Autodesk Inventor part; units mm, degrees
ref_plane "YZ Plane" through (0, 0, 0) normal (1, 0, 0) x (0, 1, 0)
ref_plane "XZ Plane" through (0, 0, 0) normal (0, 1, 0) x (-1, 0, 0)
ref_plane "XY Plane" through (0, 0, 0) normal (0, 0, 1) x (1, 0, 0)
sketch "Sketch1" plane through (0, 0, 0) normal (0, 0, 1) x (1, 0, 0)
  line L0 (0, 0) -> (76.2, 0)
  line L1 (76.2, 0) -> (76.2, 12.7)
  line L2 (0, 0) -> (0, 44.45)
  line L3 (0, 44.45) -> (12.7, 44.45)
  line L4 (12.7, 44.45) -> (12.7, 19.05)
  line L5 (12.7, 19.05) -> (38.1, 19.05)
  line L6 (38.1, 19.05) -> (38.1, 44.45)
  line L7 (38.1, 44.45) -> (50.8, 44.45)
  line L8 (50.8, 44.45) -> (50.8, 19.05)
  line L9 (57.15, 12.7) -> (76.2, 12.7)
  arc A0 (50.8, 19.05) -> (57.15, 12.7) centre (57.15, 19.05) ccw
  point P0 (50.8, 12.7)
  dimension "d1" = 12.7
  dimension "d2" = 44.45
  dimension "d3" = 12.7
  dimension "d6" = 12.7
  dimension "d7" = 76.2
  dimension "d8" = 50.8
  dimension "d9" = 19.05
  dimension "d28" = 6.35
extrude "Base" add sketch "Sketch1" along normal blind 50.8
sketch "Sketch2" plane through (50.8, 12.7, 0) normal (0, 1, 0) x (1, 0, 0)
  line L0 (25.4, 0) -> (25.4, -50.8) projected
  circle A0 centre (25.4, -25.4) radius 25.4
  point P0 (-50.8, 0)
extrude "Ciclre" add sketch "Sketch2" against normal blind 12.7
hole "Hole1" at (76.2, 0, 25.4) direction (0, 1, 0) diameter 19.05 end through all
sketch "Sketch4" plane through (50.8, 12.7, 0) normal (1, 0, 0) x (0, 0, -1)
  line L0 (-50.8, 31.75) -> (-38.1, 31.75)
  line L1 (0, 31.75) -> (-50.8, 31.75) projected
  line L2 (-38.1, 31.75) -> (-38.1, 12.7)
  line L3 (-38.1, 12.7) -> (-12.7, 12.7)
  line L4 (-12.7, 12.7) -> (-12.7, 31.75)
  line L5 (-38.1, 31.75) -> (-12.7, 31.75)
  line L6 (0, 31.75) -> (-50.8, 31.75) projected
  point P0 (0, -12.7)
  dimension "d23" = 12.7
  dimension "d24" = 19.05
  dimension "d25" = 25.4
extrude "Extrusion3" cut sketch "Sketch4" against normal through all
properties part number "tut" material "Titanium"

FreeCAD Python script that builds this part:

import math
import FreeCAD as App
import Part
import Sketcher
from FreeCAD import Vector
Q = App.Units.Quantity


def add_polygon(sketch, points):
    """Adds a closed chain of lines whose ends are joined by coincident constraints."""
    first, n = sketch.GeometryCount, len(points)
    for a, b in zip(points, points[1:] + points[:1]):
        sketch.addGeometry(Part.LineSegment(App.Vector(*a, 0), App.Vector(*b, 0)), False)
    for i in range(n):
        sketch.addConstraint(Sketcher.Constraint("Coincident", first + i, 2, first + (i + 1) % n, 1))

doc = App.newDocument("Part")
body = doc.addObject("PartDesign::Body", "Body")

# Sketch on XY plane
sketch1 = doc.addObject("Sketcher::SketchObject", "Sketch")
body.addObject(sketch1)
sketch1.AttachmentSupport = (doc.XY_Plane, [""])
sketch1.MapMode = "FlatFace"
sketch1.addGeometry([
    Part.LineSegment(Vector(0, 44, 0), Vector(0, 0, 0)),  # 0
    Part.LineSegment(Vector(0, 0, 0), Vector(76, 0, 0)),  # 1
    Part.LineSegment(Vector(76, 0, 0), Vector(76, 13, 0)),  # 2
    Part.LineSegment(Vector(76, 13, 0), Vector(57, 13, 0)),  # 3
    Part.ArcOfCircle(Part.Circle(Vector(57, 19, 0), Vector(0, 0, 1), 6), math.radians(180), math.radians(270)),  # 4
    Part.LineSegment(Vector(51, 19, 0), Vector(51, 44, 0)),  # 5
    Part.LineSegment(Vector(51, 44, 0), Vector(38, 44, 0)),  # 6
    Part.LineSegment(Vector(38, 44, 0), Vector(38, 19, 0)),  # 7
    Part.LineSegment(Vector(38, 19, 0), Vector(13, 19, 0)),  # 8
    Part.LineSegment(Vector(13, 19, 0), Vector(13, 44, 0)),  # 9
    Part.LineSegment(Vector(13, 44, 0), Vector(0, 44, 0)),  # 10
], False)
sketch1.addConstraint([
    Sketcher.Constraint("Coincident", 0, 2, 1, 1),
    Sketcher.Constraint("Coincident", 1, 2, 2, 1),
    Sketcher.Constraint("Coincident", 2, 2, 3, 1),
    Sketcher.Constraint("Tangent", 3, 2, 4, 2),
    Sketcher.Constraint("Tangent", 4, 1, 5, 1),
    Sketcher.Constraint("Coincident", 5, 2, 6, 1),
    Sketcher.Constraint("Coincident", 6, 2, 7, 1),
    Sketcher.Constraint("Coincident", 7, 2, 8, 1),
    Sketcher.Constraint("Coincident", 8, 2, 9, 1),
    Sketcher.Constraint("Coincident", 9, 2, 10, 1),
    Sketcher.Constraint("Coincident", 10, 2, 0, 1),
    Sketcher.Constraint("Vertical", 0),
    Sketcher.Constraint("Horizontal", 1),
    Sketcher.Constraint("Vertical", 2),
    Sketcher.Constraint("Horizontal", 3),
    Sketcher.Constraint("Vertical", 5),
    Sketcher.Constraint("Horizontal", 6),
    Sketcher.Constraint("Vertical", 7),
    Sketcher.Constraint("Horizontal", 8),
    Sketcher.Constraint("Vertical", 9),
    Sketcher.Constraint("Horizontal", 10),
    Sketcher.Constraint("Coincident", 0, 2, -1, 1),
    Sketcher.Constraint("Horizontal", 4, 1, 7, 2),
    Sketcher.Constraint("Horizontal", 6, 2, 9, 2),
    Sketcher.Constraint("Equal", 6, 10),
    Sketcher.Constraint("Equal", 10, 2),
    Sketcher.Constraint("Equal", 8, 5),
    Sketcher.Constraint("DistanceX", 1, 1, 1, 2, Q("3 in")),
    Sketcher.Constraint("Radius", 4, Q("0.25 in")),
    Sketcher.Constraint("DistanceX", 6, 2, 6, 1, Q("0.5 in")),
    Sketcher.Constraint("DistanceX", -1, 1, 4, 1, Q("2 in")),
])
pad1 = doc.addObject("PartDesign::Pad", "Pad")
body.addObject(pad1)
pad1.Profile = sketch1
pad1.Length = Q("2 in")

# Sketch on XZ plane
sketch2 = doc.addObject("Sketcher::SketchObject", "Sketch001")
body.addObject(sketch2)
sketch2.AttachmentSupport = (doc.XZ_Plane, [""])
sketch2.MapMode = "FlatFace"
sketch2.AttachmentOffset = App.Placement(Vector(0, 0, -0.5 * 25.4), App.Rotation())
sketch2.addGeometry(Part.Circle(Vector(76, 25, 0), Vector(0, 0, 1), 25), False)
sketch2.addConstraint([
    Sketcher.Constraint("Diameter", 0, Q("2 in")),
    Sketcher.Constraint("DistanceX", -1, 1, 0, 3, Q("3 in")),
    Sketcher.Constraint("DistanceY", -1, 1, 0, 3, Q("1 in")),
])
pad2 = doc.addObject("PartDesign::Pad", "Pad001")
body.addObject(pad2)
pad2.Profile = sketch2
pad2.Length = Q("0.5 in")

# Sketch on XZ plane
sketch3 = doc.addObject("Sketcher::SketchObject", "Sketch002")
body.addObject(sketch3)
sketch3.AttachmentSupport = (doc.XZ_Plane, [""])
sketch3.MapMode = "FlatFace"
sketch3.addGeometry(Part.Circle(Vector(76, 25, 0), Vector(0, 0, 1), 10), False)
sketch3.addConstraint([
    Sketcher.Constraint("Diameter", 0, Q("0.75 in")),
    Sketcher.Constraint("DistanceX", -1, 1, 0, 3, Q("3 in")),
    Sketcher.Constraint("DistanceY", -1, 1, 0, 3, Q("1 in")),
])
doc.recompute()
hole = doc.addObject("PartDesign::Hole", "Hole")
body.addObject(hole)
hole.Profile = sketch3
hole.ThreadType = "None"
hole.Diameter = Q("0.75 in")
hole.DepthType = "ThroughAll"

# Sketch on YZ plane
sketch4 = doc.addObject("Sketcher::SketchObject", "Sketch003")
body.addObject(sketch4)
sketch4.AttachmentSupport = (doc.YZ_Plane, [""])
sketch4.MapMode = "FlatFace"
sketch4.AttachmentOffset = App.Placement(Vector(0, 0, 2 * 25.4), App.Rotation())
add_polygon(sketch4, [(25, 13), (44, 13), (44, 38), (25, 38)])  # lines 0-3
sketch4.addConstraint([
    Sketcher.Constraint("Horizontal", 0),
    Sketcher.Constraint("Vertical", 1),
    Sketcher.Constraint("Horizontal", 2),
    Sketcher.Constraint("Vertical", 3),
    Sketcher.Constraint("DistanceY", 1, 1, 1, 2, Q("1 in")),
    Sketcher.Constraint("DistanceX", -1, 1, 2, 2, Q("1 in")),
    Sketcher.Constraint("DistanceX", 0, 1, 0, 2, Q("0.75 in")),
    Sketcher.Constraint("DistanceY", -1, 1, 0, 2, Q("0.5 in")),
])
pocket1 = doc.addObject("PartDesign::Pocket", "Pocket")
body.addObject(pocket1)
pocket1.Profile = sketch4
pocket1.Type = "ThroughAll"

doc.recompute()
